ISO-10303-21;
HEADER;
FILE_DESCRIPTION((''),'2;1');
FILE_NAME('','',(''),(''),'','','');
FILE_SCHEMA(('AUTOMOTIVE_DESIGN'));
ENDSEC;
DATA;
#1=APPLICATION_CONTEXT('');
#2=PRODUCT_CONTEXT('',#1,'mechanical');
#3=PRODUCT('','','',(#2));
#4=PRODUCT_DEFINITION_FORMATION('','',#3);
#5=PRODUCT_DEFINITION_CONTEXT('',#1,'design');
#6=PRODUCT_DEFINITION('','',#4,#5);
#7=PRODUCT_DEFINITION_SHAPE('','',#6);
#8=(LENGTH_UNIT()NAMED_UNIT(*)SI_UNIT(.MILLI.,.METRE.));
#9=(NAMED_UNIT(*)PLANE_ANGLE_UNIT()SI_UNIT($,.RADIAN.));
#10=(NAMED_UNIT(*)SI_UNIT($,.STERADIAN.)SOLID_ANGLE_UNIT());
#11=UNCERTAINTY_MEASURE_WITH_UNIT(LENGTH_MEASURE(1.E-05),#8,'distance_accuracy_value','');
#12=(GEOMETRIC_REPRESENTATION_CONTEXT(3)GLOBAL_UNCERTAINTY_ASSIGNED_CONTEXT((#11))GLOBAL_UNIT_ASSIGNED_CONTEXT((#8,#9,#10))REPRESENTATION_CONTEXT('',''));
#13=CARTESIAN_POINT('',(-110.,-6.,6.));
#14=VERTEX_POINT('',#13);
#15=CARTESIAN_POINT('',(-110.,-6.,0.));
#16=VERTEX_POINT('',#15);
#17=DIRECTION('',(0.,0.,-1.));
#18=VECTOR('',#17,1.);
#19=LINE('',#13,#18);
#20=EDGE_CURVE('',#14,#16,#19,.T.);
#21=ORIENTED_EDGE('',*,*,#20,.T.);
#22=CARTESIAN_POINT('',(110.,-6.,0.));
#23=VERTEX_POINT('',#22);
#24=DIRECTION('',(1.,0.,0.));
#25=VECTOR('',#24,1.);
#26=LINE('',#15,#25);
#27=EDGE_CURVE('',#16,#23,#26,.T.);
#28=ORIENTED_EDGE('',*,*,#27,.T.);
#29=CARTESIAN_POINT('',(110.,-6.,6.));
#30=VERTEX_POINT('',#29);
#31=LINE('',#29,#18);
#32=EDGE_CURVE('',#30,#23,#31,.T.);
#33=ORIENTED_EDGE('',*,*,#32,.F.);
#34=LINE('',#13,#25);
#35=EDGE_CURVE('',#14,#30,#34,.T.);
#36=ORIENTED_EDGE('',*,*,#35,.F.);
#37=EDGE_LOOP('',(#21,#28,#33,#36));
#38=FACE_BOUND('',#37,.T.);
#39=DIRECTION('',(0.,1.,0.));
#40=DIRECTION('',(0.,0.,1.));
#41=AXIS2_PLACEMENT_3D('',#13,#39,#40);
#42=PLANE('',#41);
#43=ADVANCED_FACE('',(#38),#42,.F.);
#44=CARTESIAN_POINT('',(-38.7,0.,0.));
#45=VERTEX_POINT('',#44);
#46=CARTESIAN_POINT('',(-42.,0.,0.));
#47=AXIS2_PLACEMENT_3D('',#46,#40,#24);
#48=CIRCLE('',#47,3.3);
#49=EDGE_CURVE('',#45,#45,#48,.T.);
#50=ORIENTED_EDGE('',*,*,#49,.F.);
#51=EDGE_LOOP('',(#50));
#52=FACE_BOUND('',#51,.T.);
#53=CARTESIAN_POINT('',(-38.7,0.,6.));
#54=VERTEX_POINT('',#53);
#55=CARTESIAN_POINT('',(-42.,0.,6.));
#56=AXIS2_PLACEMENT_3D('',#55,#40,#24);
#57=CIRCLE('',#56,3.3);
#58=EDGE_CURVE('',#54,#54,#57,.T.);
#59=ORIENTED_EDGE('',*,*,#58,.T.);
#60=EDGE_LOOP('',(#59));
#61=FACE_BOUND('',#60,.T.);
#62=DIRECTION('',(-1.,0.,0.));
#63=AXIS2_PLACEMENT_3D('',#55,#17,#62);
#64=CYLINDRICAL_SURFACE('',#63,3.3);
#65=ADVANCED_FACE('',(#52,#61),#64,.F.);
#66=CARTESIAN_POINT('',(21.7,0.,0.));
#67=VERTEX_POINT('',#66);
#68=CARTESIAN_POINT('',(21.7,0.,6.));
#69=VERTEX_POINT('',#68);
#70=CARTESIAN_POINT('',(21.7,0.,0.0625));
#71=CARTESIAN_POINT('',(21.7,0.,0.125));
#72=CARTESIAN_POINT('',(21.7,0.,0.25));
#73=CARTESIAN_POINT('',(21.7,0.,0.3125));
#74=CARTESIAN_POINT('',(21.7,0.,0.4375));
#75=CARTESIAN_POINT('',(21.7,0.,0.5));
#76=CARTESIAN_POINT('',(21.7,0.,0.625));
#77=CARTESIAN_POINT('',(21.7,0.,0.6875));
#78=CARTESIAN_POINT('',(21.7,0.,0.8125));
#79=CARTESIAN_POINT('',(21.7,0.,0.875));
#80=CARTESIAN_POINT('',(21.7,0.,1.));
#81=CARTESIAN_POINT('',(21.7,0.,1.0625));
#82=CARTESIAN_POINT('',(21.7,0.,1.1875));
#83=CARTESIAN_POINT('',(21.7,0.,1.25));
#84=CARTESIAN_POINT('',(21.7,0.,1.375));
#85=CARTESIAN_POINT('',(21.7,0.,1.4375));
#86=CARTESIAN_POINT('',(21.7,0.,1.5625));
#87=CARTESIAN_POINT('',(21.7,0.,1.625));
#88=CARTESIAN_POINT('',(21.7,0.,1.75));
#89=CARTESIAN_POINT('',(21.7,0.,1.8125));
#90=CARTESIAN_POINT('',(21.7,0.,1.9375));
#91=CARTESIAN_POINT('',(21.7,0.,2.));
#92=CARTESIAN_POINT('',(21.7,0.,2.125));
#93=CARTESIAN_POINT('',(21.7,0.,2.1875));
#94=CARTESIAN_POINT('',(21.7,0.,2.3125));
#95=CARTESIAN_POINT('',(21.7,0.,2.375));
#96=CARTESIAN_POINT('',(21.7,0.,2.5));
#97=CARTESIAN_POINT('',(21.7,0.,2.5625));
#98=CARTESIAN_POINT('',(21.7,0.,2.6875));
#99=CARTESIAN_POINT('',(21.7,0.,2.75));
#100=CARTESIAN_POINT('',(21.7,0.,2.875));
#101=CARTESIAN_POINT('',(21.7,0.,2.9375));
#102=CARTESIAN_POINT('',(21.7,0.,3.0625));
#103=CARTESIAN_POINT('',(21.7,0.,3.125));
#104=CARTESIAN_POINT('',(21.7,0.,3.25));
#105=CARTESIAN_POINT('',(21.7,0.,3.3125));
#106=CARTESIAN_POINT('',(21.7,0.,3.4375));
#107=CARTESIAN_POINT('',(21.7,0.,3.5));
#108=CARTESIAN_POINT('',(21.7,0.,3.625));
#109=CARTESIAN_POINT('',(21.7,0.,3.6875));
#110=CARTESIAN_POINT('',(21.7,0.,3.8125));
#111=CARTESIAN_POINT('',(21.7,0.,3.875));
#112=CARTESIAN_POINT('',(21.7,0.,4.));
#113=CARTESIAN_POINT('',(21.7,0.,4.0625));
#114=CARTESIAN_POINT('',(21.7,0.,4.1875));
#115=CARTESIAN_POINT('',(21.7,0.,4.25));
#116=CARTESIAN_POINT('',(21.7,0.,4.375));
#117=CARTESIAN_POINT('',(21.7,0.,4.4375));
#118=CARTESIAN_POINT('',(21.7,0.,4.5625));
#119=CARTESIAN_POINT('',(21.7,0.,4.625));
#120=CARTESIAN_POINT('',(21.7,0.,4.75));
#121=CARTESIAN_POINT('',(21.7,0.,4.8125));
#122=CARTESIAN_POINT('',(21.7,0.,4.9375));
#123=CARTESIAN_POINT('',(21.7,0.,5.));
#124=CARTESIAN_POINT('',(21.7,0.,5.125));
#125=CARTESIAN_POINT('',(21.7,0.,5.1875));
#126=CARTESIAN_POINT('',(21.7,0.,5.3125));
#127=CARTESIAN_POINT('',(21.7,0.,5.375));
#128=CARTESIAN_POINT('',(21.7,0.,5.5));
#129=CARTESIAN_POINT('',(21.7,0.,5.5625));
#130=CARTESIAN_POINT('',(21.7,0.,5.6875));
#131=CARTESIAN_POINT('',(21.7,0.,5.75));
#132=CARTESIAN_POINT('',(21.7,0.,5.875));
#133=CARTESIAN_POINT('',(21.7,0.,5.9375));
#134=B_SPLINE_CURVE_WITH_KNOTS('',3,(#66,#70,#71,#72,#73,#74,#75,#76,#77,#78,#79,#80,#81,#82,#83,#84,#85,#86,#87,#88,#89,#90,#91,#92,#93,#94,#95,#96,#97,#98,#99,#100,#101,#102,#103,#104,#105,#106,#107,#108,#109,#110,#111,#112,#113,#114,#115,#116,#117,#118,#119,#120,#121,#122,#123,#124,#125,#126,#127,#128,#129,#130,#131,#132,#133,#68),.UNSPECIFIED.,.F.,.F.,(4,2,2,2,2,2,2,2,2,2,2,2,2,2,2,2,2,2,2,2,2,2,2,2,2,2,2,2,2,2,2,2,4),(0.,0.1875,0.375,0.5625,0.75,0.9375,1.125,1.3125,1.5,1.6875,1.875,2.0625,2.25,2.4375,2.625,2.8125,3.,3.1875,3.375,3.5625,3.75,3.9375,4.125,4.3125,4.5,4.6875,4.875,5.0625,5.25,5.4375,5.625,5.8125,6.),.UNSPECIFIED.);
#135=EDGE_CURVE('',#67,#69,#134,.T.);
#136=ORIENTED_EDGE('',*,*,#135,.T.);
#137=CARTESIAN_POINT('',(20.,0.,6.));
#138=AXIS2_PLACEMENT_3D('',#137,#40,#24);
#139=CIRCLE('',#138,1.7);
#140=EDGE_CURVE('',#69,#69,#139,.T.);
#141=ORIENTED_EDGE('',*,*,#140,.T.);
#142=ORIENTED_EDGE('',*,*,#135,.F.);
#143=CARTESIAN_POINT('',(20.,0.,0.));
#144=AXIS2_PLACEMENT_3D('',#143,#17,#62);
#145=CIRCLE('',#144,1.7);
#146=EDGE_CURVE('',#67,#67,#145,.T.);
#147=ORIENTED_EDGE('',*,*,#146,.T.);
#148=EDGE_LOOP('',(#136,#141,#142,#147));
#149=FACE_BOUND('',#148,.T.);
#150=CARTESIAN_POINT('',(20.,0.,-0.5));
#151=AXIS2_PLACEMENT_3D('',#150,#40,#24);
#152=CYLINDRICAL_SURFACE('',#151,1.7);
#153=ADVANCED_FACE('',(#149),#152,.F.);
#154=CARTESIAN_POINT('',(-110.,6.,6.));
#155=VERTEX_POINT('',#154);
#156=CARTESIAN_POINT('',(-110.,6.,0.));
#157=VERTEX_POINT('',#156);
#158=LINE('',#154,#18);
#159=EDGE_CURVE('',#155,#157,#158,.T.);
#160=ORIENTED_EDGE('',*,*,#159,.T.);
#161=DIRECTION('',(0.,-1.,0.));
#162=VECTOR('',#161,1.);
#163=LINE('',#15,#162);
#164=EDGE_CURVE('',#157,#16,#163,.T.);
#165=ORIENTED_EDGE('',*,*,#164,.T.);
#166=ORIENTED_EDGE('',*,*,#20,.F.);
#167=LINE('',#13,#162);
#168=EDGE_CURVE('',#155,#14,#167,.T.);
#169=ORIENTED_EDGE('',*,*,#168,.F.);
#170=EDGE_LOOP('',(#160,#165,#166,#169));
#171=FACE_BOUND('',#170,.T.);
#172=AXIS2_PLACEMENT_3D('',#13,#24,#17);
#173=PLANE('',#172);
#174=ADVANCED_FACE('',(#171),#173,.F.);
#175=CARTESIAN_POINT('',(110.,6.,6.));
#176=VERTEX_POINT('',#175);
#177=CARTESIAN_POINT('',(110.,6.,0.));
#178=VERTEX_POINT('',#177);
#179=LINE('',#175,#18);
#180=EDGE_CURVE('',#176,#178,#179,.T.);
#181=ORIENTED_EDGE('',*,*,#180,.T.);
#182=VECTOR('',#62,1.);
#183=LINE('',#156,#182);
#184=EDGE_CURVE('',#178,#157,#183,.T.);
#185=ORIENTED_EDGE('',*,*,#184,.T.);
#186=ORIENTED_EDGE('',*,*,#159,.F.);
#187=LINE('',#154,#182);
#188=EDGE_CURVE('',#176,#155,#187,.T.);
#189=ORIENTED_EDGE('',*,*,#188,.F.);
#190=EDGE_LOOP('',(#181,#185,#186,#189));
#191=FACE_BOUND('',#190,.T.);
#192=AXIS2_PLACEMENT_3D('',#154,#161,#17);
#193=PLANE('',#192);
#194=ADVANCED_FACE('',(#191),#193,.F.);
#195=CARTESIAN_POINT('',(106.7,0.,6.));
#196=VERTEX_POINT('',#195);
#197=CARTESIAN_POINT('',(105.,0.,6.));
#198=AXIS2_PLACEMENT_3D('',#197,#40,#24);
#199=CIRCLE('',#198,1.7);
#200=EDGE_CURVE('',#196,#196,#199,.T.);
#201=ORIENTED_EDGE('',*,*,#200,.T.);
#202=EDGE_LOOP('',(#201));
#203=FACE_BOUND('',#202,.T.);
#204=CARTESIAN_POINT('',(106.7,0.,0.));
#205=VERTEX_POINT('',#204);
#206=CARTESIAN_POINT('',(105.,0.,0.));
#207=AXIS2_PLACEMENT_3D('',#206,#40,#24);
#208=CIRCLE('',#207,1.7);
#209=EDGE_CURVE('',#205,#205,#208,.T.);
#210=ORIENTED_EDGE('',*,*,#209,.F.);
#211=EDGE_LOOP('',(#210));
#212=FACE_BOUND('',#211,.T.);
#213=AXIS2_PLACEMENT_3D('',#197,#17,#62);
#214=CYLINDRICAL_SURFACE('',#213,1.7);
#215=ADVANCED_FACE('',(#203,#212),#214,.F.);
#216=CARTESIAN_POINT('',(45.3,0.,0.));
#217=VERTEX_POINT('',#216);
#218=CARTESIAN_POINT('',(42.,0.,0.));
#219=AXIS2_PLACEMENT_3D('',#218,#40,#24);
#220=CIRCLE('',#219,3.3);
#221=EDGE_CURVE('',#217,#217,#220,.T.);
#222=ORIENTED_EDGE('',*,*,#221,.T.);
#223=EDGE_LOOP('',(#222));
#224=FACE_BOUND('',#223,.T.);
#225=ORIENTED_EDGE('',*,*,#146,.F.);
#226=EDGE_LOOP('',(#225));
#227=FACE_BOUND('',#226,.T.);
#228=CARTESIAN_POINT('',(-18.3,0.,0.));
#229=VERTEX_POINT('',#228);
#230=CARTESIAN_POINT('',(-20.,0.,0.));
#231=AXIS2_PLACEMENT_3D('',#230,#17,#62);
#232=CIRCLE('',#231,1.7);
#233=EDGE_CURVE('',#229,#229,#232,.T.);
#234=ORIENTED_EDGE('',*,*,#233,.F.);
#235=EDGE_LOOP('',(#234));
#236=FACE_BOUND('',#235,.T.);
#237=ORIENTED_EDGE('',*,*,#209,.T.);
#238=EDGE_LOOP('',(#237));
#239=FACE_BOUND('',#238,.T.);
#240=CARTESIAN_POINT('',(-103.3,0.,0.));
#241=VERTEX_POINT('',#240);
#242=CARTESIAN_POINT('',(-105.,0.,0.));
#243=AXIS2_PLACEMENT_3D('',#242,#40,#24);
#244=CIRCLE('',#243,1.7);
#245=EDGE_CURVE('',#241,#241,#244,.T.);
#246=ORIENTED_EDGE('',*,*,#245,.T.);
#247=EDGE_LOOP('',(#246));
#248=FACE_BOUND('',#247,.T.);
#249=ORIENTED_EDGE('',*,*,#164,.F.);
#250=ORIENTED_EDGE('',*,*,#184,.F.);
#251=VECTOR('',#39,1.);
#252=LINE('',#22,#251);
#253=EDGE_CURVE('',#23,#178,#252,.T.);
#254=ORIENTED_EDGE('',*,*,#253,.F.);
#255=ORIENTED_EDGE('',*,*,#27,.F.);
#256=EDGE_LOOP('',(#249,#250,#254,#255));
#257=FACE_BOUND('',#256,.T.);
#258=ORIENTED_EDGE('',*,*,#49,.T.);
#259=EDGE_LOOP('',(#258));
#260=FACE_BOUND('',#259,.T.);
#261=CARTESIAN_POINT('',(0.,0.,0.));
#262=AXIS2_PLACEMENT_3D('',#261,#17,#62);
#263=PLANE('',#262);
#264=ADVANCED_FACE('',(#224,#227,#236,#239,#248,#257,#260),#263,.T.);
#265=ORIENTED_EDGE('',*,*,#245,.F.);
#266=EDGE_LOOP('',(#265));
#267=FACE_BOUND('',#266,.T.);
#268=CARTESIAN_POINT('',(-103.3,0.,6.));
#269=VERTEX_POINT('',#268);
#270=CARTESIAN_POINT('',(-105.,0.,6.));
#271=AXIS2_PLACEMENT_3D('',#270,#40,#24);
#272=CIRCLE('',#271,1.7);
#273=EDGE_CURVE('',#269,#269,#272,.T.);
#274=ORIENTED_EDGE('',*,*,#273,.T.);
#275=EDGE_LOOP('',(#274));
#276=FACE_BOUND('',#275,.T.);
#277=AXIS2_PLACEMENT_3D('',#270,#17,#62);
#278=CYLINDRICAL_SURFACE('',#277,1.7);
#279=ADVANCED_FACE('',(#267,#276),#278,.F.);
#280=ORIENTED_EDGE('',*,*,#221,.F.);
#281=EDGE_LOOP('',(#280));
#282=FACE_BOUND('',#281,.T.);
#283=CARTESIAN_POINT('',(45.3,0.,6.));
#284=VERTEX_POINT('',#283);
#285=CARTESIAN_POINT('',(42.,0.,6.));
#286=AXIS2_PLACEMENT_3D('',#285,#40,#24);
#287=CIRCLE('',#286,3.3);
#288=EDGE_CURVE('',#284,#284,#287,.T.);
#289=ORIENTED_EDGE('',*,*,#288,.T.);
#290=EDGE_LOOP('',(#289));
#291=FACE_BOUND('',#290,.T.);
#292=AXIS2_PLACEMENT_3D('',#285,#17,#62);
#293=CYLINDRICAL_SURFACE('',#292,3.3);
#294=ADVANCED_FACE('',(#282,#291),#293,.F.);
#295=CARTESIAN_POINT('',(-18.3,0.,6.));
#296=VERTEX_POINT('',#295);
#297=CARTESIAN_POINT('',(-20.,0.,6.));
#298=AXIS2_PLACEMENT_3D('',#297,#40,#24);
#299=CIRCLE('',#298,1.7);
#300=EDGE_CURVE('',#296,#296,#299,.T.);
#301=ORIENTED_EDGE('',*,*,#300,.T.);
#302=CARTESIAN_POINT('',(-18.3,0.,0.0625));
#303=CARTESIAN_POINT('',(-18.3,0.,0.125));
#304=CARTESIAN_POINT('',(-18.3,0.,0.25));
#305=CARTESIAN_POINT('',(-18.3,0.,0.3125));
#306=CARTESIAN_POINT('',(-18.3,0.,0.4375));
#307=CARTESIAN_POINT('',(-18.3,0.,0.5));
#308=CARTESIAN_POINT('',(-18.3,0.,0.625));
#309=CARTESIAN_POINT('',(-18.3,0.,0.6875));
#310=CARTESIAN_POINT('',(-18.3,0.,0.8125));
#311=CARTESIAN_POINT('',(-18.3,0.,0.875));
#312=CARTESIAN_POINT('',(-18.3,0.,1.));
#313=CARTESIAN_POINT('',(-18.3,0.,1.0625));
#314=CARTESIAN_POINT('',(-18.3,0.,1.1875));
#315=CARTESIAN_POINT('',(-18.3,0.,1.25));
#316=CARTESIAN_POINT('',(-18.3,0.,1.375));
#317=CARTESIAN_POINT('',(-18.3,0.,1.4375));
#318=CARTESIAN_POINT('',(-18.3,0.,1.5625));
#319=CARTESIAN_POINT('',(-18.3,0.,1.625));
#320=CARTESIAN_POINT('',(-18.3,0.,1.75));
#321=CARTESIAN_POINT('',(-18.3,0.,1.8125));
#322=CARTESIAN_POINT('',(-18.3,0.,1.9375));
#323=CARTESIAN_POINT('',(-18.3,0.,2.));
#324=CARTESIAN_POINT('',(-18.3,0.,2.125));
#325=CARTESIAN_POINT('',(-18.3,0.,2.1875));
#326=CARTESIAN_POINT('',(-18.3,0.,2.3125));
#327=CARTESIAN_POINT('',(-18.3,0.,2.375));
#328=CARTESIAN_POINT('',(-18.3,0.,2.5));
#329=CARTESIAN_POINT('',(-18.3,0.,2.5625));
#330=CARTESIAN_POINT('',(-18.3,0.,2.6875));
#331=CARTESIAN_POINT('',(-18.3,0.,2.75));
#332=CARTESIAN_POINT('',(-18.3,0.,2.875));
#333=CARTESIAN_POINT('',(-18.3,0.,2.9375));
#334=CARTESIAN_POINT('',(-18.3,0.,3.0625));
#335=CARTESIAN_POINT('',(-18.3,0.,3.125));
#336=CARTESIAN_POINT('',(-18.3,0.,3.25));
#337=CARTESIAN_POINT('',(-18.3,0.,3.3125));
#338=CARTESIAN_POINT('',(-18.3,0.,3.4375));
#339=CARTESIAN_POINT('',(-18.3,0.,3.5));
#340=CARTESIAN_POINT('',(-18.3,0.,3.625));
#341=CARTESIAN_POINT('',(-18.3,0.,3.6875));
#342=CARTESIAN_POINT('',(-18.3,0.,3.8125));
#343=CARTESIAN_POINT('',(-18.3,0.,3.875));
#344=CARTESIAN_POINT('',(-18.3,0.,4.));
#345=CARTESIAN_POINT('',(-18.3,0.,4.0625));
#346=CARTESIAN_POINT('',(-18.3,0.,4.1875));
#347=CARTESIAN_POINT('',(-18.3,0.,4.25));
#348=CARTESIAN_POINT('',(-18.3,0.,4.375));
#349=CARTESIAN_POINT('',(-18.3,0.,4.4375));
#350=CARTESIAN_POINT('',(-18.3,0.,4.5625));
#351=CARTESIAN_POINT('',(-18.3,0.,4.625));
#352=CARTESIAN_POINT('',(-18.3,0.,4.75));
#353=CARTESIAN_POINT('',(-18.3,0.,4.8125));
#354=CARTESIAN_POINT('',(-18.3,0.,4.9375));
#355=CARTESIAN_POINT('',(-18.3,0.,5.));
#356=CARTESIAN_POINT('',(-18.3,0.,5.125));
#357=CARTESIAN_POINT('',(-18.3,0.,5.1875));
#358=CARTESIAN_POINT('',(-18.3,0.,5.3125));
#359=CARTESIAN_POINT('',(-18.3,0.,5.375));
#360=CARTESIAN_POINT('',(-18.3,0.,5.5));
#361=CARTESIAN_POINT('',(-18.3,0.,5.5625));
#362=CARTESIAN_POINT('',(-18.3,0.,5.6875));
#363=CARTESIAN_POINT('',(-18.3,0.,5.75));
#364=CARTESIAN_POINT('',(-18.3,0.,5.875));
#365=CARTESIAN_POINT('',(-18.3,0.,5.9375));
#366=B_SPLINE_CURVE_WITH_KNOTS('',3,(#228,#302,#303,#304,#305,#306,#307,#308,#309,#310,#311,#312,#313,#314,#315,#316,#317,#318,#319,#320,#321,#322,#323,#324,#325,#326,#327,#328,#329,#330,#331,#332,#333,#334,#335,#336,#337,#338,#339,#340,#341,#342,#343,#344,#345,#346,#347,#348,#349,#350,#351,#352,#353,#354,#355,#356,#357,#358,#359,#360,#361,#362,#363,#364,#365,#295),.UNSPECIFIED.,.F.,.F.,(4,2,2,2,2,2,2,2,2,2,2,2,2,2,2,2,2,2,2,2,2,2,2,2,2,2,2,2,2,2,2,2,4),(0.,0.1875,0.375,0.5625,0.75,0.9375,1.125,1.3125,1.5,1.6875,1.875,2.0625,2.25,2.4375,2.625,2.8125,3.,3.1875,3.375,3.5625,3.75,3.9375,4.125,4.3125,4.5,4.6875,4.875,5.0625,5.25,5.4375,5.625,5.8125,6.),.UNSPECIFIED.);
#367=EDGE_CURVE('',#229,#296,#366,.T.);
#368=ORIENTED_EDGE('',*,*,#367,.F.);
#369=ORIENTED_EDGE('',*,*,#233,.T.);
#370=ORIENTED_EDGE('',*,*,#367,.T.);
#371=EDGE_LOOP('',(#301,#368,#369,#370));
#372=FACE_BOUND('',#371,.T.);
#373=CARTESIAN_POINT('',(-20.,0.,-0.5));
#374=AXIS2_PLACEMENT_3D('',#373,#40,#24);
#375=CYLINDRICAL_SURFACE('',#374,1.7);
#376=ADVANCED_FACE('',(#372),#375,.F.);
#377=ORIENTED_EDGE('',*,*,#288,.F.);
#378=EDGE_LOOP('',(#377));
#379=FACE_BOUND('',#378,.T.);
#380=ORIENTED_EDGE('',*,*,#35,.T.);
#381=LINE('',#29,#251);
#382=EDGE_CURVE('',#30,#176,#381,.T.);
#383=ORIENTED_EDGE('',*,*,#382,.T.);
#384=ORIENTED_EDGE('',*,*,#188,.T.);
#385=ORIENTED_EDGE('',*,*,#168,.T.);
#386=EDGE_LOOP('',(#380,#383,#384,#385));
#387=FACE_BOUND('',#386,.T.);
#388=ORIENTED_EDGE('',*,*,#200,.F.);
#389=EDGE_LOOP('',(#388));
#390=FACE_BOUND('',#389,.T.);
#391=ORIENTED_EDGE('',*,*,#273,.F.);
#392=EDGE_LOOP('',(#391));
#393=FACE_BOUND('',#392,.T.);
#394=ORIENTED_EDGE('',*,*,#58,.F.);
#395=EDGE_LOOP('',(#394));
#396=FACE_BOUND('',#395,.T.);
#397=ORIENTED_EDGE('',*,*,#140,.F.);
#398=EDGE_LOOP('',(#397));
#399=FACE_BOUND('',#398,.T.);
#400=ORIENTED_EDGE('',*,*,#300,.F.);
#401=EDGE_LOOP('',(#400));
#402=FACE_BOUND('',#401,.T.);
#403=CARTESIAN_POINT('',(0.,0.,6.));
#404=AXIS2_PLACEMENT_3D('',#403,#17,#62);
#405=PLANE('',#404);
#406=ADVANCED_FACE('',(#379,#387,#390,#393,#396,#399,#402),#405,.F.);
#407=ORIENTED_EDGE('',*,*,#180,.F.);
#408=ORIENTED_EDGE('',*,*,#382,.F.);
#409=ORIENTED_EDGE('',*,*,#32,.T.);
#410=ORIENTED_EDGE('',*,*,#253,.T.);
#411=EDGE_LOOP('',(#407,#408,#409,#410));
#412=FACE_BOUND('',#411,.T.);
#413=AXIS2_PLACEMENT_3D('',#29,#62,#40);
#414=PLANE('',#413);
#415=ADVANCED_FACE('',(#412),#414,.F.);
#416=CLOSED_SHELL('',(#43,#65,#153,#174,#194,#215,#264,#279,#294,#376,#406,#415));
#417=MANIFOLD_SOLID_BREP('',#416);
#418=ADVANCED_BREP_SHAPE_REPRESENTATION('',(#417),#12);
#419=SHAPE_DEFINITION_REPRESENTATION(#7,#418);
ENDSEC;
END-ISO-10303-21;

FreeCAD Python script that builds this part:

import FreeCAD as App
import Part
import Sketcher

V = App.Vector
Q = App.Units.Quantity

doc = App.newDocument("Part")
params = doc.addObject("Spreadsheet::Sheet", "Params")
for row, (alias, value) in enumerate([
    ("sketch1_diameter", "3.4 mm"),
    ("sketch1_diameter2", "6.6 mm"),
    ("sketch1_width", "220 mm"),
    ("sketch1_height", "12 mm"),
    ("pad1_length", "6 mm"),
    ("sketch2_diameter", "3.4 mm"),
    ("pocket1_length", "6.5 mm"),
], start=1):
    params.set(f"A{row}", alias)
    params.set(f"B{row}", "=" + value)
    params.setAlias(f"B{row}", alias)

body = doc.addObject("PartDesign::Body", "Body")

# Sketch on XY plane
sketch1 = doc.addObject("Sketcher::SketchObject", "Sketch")
body.addObject(sketch1)
sketch1.AttachmentSupport = (doc.XY_Plane, [""])
sketch1.MapMode = "FlatFace"
sketch1.addGeometry(Part.LineSegment(V(-110, 6, 0), V(-110, -6, 0)), False)
sketch1.addGeometry(Part.LineSegment(V(-110, -6, 0), V(110, -6, 0)), False)
sketch1.addGeometry(Part.LineSegment(V(110, -6, 0), V(110, 6, 0)), False)
sketch1.addGeometry(Part.LineSegment(V(110, 6, 0), V(-110, 6, 0)), False)
sketch1.addGeometry(Part.Circle(V(-105, 0, 0), V(0, 0, 1), 1.7), False)
sketch1.addGeometry(Part.Circle(V(-42, 0, 0), V(0, 0, 1), 3.3), False)
sketch1.addGeometry(Part.Circle(V(42, 0, 0), V(0, 0, 1), 3.3), False)
sketch1.addGeometry(Part.Circle(V(105, 0, 0), V(0, 0, 1), 1.7), False)
sketch1.addConstraint(Sketcher.Constraint("Coincident", 0, 2, 1, 1))
sketch1.addConstraint(Sketcher.Constraint("Coincident", 1, 2, 2, 1))
sketch1.addConstraint(Sketcher.Constraint("Coincident", 2, 2, 3, 1))
sketch1.addConstraint(Sketcher.Constraint("Coincident", 3, 2, 0, 1))
sketch1.addConstraint(Sketcher.Constraint("Vertical", 0))
sketch1.addConstraint(Sketcher.Constraint("Horizontal", 1))
sketch1.addConstraint(Sketcher.Constraint("Vertical", 2))
sketch1.addConstraint(Sketcher.Constraint("Horizontal", 3))
sketch1.addConstraint(Sketcher.Constraint("Equal", 5, 6))
sketch1.addConstraint(Sketcher.Constraint("Equal", 4, 7))
sketch1.addConstraint(Sketcher.Constraint("Symmetric", 5, 3, 6, 3, -1, 1))
sketch1.addConstraint(Sketcher.Constraint("Symmetric", 4, 3, 7, 3, -1, 1))
sketch1.addConstraint(Sketcher.Constraint("Symmetric", 0, 2, 2, 2, -1, 1))
sketch1.addConstraint(Sketcher.Constraint("PointOnObject", 4, 3, -1))
sketch1.addConstraint(Sketcher.Constraint("PointOnObject", 5, 3, -1))
sketch1.addConstraint(Sketcher.Constraint("Diameter", 4, Q("3.4 mm")))
sketch1.addConstraint(Sketcher.Constraint("Diameter", 5, Q("6.6 mm")))
sketch1.addConstraint(Sketcher.Constraint("DistanceX", 1, 1, 1, 2, Q("220 mm")))
sketch1.addConstraint(Sketcher.Constraint("DistanceY", 0, 2, 0, 1, Q("12 mm")))
sketch1.addConstraint(Sketcher.Constraint("DistanceX", 4, 3, -1, 1, Q("105 mm")))
sketch1.addConstraint(Sketcher.Constraint("DistanceX", 5, 3, -1, 1, Q("42 mm")))
sketch1.setExpression("Constraints[15]", "Params.sketch1_diameter")
sketch1.setExpression("Constraints[16]", "Params.sketch1_diameter2")
sketch1.setExpression("Constraints[17]", "Params.sketch1_width")
sketch1.setExpression("Constraints[18]", "Params.sketch1_height")
pad1 = doc.addObject("PartDesign::Pad", "Pad")
body.addObject(pad1)
pad1.Profile = sketch1
pad1.setExpression("Length", "Params.pad1_length")

# Sketch on XY plane
sketch2 = doc.addObject("Sketcher::SketchObject", "Sketch001")
body.addObject(sketch2)
sketch2.AttachmentSupport = (doc.XY_Plane, [""])
sketch2.MapMode = "FlatFace"
sketch2.AttachmentOffset = App.Placement(V(0, 0, 6), App.Rotation())
sketch2.addGeometry(Part.Circle(V(-20, 0, 0), V(0, 0, 1), 1.7), False)
sketch2.addGeometry(Part.Circle(V(20, 0, 0), V(0, 0, 1), 1.7), False)
sketch2.addConstraint(Sketcher.Constraint("Equal", 0, 1))
sketch2.addConstraint(Sketcher.Constraint("Symmetric", 0, 3, 1, 3, -1, 1))
sketch2.addConstraint(Sketcher.Constraint("PointOnObject", 0, 3, -1))
sketch2.addConstraint(Sketcher.Constraint("Diameter", 0, Q("3.4 mm")))
sketch2.addConstraint(Sketcher.Constraint("DistanceX", 0, 3, -1, 1, Q("20 mm")))
sketch2.setExpression("Constraints[3]", "Params.sketch2_diameter")
pocket1 = doc.addObject("PartDesign::Pocket", "Pocket")
body.addObject(pocket1)
pocket1.Profile = sketch2
pocket1.setExpression("Length", "Params.pocket1_length")

doc.recompute()
